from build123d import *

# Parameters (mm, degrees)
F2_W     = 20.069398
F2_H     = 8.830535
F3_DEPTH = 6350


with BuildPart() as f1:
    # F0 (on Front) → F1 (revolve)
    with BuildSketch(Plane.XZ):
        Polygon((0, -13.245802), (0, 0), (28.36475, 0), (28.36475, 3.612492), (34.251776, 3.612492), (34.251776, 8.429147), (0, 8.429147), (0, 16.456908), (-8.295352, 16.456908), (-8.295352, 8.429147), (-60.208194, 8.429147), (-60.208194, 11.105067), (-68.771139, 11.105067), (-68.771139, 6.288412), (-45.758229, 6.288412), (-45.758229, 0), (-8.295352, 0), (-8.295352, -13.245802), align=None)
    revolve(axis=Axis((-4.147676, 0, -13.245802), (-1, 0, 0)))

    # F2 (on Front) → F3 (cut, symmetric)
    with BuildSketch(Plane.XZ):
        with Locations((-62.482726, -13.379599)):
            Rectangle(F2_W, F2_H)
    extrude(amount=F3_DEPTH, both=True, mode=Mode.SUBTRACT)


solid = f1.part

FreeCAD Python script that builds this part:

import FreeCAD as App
import Part
import Sketcher
from FreeCAD import Vector
Q = App.Units.Quantity


def add_polygon(sketch, points):
    """Adds a closed chain of lines whose ends are joined by coincident constraints."""
    first, n = sketch.GeometryCount, len(points)
    for a, b in zip(points, points[1:] + points[:1]):
        sketch.addGeometry(Part.LineSegment(App.Vector(*a, 0), App.Vector(*b, 0)), False)
    for i in range(n):
        sketch.addConstraint(Sketcher.Constraint("Coincident", first + i, 2, first + (i + 1) % n, 1))

doc = App.newDocument("Part")
body = doc.addObject("PartDesign::Body", "Body")

# Sketch on XZ plane
sketch1 = body.newObject("Sketcher::SketchObject", "Sketch")
sketch1.AttachmentSupport = (doc.getObject("XZ_Plane"), [""])
sketch1.MapMode = "FlatFace"
add_polygon(sketch1, [(0, -13.2), (0, 0), (28.4, 0), (28.4, 3.6), (34.3, 3.6), (34.3, 8.4), (0, 8.4), (0, 16.5), (-8.3, 16.5), (-8.3, 8.4), (-60.2, 8.4), (-60.2, 11.1), (-68.8, 11.1), (-68.8, 6.3), (-45.8, 6.3), (-45.8, 0), (-8.3, 0), (-8.3, -13.2)])  # lines 0-17
sketch1.addGeometry(Part.LineSegment(Vector(34.3, -13.2, 0), Vector(-68.8, -13.2, 0)), True)  # axis
sketch1.addConstraint(Sketcher.Constraint("Vertical", 0))
sketch1.addConstraint(Sketcher.Constraint("Horizontal", 1))
sketch1.addConstraint(Sketcher.Constraint("Vertical", 2))
sketch1.addConstraint(Sketcher.Constraint("Horizontal", 3))
sketch1.addConstraint(Sketcher.Constraint("Vertical", 4))
sketch1.addConstraint(Sketcher.Constraint("Horizontal", 5))
sketch1.addConstraint(Sketcher.Constraint("Vertical", 6))
sketch1.addConstraint(Sketcher.Constraint("Horizontal", 7))
sketch1.addConstraint(Sketcher.Constraint("Vertical", 8))
sketch1.addConstraint(Sketcher.Constraint("Horizontal", 9))
sketch1.addConstraint(Sketcher.Constraint("Vertical", 10))
sketch1.addConstraint(Sketcher.Constraint("Horizontal", 11))
sketch1.addConstraint(Sketcher.Constraint("Vertical", 12))
sketch1.addConstraint(Sketcher.Constraint("Horizontal", 13))
sketch1.addConstraint(Sketcher.Constraint("Vertical", 14))
sketch1.addConstraint(Sketcher.Constraint("Horizontal", 15))
sketch1.addConstraint(Sketcher.Constraint("Vertical", 16))
sketch1.addConstraint(Sketcher.Constraint("Horizontal", 17))
sketch1.addConstraint(Sketcher.Constraint("Horizontal", 18))
sketch1.addConstraint(Sketcher.Constraint("Coincident", 0, 2, -1, 1))
sketch1.addConstraint(Sketcher.Constraint("PointOnObject", 5, 2, -2))
sketch1.addConstraint(Sketcher.Constraint("PointOnObject", 14, 2, -1))
sketch1.addConstraint(Sketcher.Constraint("Horizontal", 5, 2, 8, 2))
sketch1.addConstraint(Sketcher.Constraint("Horizontal", 17, 2, 18, 1))
sketch1.addConstraint(Sketcher.Constraint("Vertical", 8, 2, 15, 2))
sketch1.addConstraint(Sketcher.Constraint("Vertical", 4, 2, 18, 1))
sketch1.addConstraint(Sketcher.Constraint("Vertical", 12, 2, 18, 2))
sketch1.addConstraint(Sketcher.Constraint("Equal", 4, 12))
sketch1.addConstraint(Sketcher.Constraint("DistanceX", 1, 1, 1, 2, 28.36475))
sketch1.addConstraint(Sketcher.Constraint("DistanceX", 9, 2, 9, 1, 51.912842))
sketch1.addConstraint(Sketcher.Constraint("DistanceX", 13, 1, 13, 2, 23.01291))
sketch1.addConstraint(Sketcher.Constraint("DistanceY", 2, 1, 2, 2, 3.612492))
sketch1.addConstraint(Sketcher.Constraint("DistanceY", 6, 1, 6, 2, 8.027761))
sketch1.addConstraint(Sketcher.Constraint("DistanceY", 10, 1, 10, 2, 2.67592))
sketch1.addConstraint(Sketcher.Constraint("DistanceX", 3, 1, 3, 2, 5.887026))
sketch1.addConstraint(Sketcher.Constraint("DistanceX", 7, 2, 7, 1, 8.295352))
sketch1.addConstraint(Sketcher.Constraint("DistanceX", 11, 2, 11, 1, 8.562945))
sketch1.addConstraint(Sketcher.Constraint("DistanceY", 0, 1, 0, 2, 13.245802))
sketch1.addConstraint(Sketcher.Constraint("DistanceY", 4, 1, 4, 2, 4.816655))
revolution = body.newObject("PartDesign::Revolution", "Revolution")
revolution.Profile = sketch1
revolution.ReferenceAxis = (sketch1, ["Axis0"])
revolution.Angle = 360

# Sketch on XZ plane
sketch2 = body.newObject("Sketcher::SketchObject", "Sketch001")
sketch2.AttachmentSupport = (doc.getObject("XZ_Plane"), [""])
sketch2.MapMode = "FlatFace"
add_polygon(sketch2, [(-73, -9), (-73, -18), (-52, -18), (-52, -9)])  # lines 0-3
sketch2.addConstraint(Sketcher.Constraint("Vertical", 0))
sketch2.addConstraint(Sketcher.Constraint("Horizontal", 1))
sketch2.addConstraint(Sketcher.Constraint("Vertical", 2))
sketch2.addConstraint(Sketcher.Constraint("Horizontal", 3))
sketch2.addConstraint(Sketcher.Constraint("DistanceX", 1, 1, 1, 2, 20.069398))
sketch2.addConstraint(Sketcher.Constraint("DistanceY", 0, 2, 0, 1, 8.830535))
sketch2.addConstraint(Sketcher.Constraint("DistanceY", 2, 2, -1, 1, 8.964332))
sketch2.addConstraint(Sketcher.Constraint("DistanceX", 0, 2, -1, 1, 72.517425))
pocket1 = body.newObject("PartDesign::Pocket", "Pocket")
pocket1.Profile = sketch2
pocket1.Length = Q("500 in")
pocket1.Midplane = True

doc.recompute()
